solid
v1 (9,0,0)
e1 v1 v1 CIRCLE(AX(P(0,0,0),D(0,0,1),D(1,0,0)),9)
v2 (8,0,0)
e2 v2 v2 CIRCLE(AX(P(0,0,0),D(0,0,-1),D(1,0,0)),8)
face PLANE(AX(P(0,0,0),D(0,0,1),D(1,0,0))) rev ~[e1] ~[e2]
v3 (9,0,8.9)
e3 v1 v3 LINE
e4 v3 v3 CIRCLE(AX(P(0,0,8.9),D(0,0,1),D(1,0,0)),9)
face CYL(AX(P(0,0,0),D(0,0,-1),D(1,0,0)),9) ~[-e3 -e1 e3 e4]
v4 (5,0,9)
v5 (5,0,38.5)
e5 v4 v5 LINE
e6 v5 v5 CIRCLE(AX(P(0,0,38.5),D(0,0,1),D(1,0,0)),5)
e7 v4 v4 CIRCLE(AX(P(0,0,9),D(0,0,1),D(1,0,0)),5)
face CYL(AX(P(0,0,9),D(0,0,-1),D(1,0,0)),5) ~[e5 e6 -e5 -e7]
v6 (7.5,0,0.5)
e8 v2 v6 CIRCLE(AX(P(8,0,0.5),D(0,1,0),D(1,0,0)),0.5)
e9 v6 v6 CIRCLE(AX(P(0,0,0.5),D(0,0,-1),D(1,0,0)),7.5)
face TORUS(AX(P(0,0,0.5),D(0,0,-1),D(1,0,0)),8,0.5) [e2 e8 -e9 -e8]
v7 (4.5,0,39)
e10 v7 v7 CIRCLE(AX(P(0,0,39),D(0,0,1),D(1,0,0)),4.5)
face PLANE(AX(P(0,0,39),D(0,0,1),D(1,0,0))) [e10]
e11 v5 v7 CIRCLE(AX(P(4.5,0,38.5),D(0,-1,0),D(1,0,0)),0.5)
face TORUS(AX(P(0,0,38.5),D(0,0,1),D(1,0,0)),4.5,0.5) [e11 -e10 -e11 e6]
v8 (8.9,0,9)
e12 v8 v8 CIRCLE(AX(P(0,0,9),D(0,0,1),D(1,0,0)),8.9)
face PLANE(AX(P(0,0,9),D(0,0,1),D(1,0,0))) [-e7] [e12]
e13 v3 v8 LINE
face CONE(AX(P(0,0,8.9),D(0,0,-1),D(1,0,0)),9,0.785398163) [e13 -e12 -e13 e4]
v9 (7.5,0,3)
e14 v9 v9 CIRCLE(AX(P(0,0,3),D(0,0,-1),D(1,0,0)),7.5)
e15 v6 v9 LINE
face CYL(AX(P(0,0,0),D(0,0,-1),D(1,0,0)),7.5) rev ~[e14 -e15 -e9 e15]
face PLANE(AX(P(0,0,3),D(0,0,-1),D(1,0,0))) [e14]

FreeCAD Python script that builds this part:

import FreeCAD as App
import Part
import Sketcher

V = App.Vector
Q = App.Units.Quantity


def edges_at(feature, points):
    """Names of the edges that pass closest to the given points."""
    edges = feature.Shape.Edges
    near = lambda p: min(range(len(edges)), key=lambda i: edges[i].distToShape(Part.Vertex(*p))[0])
    return sorted({f"Edge{near(p) + 1}" for p in points})

doc = App.newDocument("Part")
params = doc.addObject("Spreadsheet::Sheet", "Params")
for row, (alias, value) in enumerate([
    ("sketch1_diameter", "18 mm"),
    ("pad1_length", "9 mm"),
    ("sketch2_diameter", "10 mm"),
    ("pad2_length", "30 mm"),
    ("sketch3_diameter", "15 mm"),
    ("pocket1_length", "3 mm"),
    ("fillet_radius", "0.5 mm"),
    ("chamfer_size", "0.1 mm"),
], start=1):
    params.set(f"A{row}", alias)
    params.set(f"B{row}", "=" + value)
    params.setAlias(f"B{row}", alias)

body = doc.addObject("PartDesign::Body", "Body")

sketch1 = body.newObject("Sketcher::SketchObject", "Sketch")
sketch1.AttachmentSupport = (doc.getObject("XY_Plane"), [""])
sketch1.MapMode = "FlatFace"
sketch1.addGeometry(Part.Circle(V(0, 0, 0), V(0, 0, 1), 9), False)
sketch1.addConstraint(Sketcher.Constraint("Coincident", 0, 3, -1, 1))
sketch1.addConstraint(Sketcher.Constraint("Diameter", 0, Q("18 mm")))
sketch1.setExpression("Constraints[1]", "Params.sketch1_diameter")
pad1 = body.newObject("PartDesign::Pad", "Pad")
pad1.Profile = sketch1
pad1.setExpression("Length", "Params.pad1_length")

sketch2 = body.newObject("Sketcher::SketchObject", "Sketch001")
sketch2.AttachmentSupport = (doc.getObject("XY_Plane"), [""])
sketch2.MapMode = "FlatFace"
sketch2.AttachmentOffset = App.Placement(V(0, 0, 9), App.Rotation())
sketch2.addGeometry(Part.Circle(V(0, 0, 0), V(0, 0, 1), 5), False)
sketch2.addConstraint(Sketcher.Constraint("Coincident", 0, 3, -1, 1))
sketch2.addConstraint(Sketcher.Constraint("Diameter", 0, Q("10 mm")))
sketch2.setExpression("Constraints[1]", "Params.sketch2_diameter")
pad2 = body.newObject("PartDesign::Pad", "Pad001")
pad2.Profile = sketch2
pad2.setExpression("Length", "Params.pad2_length")

sketch3 = body.newObject("Sketcher::SketchObject", "Sketch002")
sketch3.AttachmentSupport = (doc.getObject("XY_Plane"), [""])
sketch3.MapMode = "FlatFace"
sketch3.addGeometry(Part.Circle(V(0, 0, 0), V(0, 0, 1), 8), False)
sketch3.addConstraint(Sketcher.Constraint("Coincident", 0, 3, -1, 1))
sketch3.addConstraint(Sketcher.Constraint("Diameter", 0, Q("15 mm")))
sketch3.setExpression("Constraints[1]", "Params.sketch3_diameter")
pocket1 = body.newObject("PartDesign::Pocket", "Pocket")
pocket1.Profile = sketch3
pocket1.setExpression("Length", "Params.pocket1_length")
pocket1.Reversed = True
doc.recompute()

fillet = body.newObject("PartDesign::Fillet", "Fillet")
fillet.Base = (pocket1, edges_at(pocket1, [(-7.5, 0, 0), (-5, 0, 39)]))
fillet.setExpression("Radius", "Params.fillet_radius")
doc.recompute()

chamfer = body.newObject("PartDesign::Chamfer", "Chamfer")
chamfer.Base = (fillet, edges_at(fillet, [(-9, 0, 9)]))
chamfer.setExpression("Size", "Params.chamfer_size")

doc.recompute()
